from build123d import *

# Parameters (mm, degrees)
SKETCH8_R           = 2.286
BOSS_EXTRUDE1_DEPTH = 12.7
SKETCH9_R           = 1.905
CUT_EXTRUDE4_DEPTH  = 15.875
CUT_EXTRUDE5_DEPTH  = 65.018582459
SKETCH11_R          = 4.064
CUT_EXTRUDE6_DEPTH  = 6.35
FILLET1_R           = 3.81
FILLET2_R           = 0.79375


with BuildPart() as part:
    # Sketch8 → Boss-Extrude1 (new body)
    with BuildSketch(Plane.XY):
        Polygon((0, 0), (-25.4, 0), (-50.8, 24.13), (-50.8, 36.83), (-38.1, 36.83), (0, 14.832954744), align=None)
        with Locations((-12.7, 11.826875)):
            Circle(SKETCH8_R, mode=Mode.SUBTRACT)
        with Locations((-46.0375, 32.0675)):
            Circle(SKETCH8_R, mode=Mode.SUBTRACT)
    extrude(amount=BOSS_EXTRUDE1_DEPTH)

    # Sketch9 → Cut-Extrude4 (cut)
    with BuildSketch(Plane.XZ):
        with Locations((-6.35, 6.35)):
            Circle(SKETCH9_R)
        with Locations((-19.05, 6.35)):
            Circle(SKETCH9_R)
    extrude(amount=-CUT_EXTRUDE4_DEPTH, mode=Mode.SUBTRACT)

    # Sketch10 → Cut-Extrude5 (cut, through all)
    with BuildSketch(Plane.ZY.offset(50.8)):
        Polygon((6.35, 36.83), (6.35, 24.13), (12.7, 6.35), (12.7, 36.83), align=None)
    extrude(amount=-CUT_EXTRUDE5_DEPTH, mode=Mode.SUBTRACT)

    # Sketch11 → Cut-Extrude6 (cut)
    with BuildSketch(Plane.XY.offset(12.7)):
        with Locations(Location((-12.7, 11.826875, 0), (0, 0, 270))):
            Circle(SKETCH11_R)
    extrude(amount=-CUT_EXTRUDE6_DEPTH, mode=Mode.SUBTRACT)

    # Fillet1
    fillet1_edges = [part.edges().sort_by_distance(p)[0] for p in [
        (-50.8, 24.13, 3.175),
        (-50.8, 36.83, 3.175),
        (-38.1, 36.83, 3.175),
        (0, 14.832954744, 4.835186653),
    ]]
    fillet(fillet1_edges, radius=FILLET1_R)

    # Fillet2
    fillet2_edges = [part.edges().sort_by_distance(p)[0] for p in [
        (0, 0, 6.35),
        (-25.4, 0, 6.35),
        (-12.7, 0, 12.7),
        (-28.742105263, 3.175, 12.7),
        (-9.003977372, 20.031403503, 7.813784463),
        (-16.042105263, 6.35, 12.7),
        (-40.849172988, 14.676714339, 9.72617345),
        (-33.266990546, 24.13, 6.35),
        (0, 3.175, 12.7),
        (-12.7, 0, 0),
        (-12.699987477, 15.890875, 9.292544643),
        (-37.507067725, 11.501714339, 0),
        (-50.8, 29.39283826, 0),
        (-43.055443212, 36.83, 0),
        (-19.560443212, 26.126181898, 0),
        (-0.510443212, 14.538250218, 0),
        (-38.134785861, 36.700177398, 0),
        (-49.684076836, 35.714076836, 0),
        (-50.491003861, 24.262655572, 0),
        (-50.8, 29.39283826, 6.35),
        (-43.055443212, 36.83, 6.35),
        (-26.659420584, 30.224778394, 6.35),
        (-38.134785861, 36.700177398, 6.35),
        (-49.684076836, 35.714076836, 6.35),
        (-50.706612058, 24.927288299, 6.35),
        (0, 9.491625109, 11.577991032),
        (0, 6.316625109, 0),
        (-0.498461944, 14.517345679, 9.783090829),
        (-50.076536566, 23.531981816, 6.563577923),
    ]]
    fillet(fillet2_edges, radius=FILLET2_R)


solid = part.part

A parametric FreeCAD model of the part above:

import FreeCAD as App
import Part
import Sketcher

V = App.Vector
Q = App.Units.Quantity


def edges_at(feature, points):
    """Names of the edges that pass closest to the given points."""
    edges = feature.Shape.Edges
    near = lambda p: min(range(len(edges)), key=lambda i: edges[i].distToShape(Part.Vertex(*p))[0])
    return sorted({f"Edge{near(p) + 1}" for p in points})


def add_polygon(sketch, points):
    """Adds a closed chain of lines whose ends are joined by coincident constraints."""
    first, n = sketch.GeometryCount, len(points)
    for a, b in zip(points, points[1:] + points[:1]):
        sketch.addGeometry(Part.LineSegment(App.Vector(*a, 0), App.Vector(*b, 0)), False)
    for i in range(n):
        sketch.addConstraint(Sketcher.Constraint("Coincident", first + i, 2, first + (i + 1) % n, 1))

doc = App.newDocument("Part")
body = doc.addObject("PartDesign::Body", "Body")

# Sketch on XY plane
sketch1 = body.newObject("Sketcher::SketchObject", "Sketch")
sketch1.AttachmentSupport = (doc.getObject("XY_Plane"), [""])
sketch1.MapMode = "FlatFace"
add_polygon(sketch1, [(-25.4, 0), (0, 0), (0, 14.8), (-38.1, 36.8), (-50.8, 36.8), (-50.8, 24.1)])  # lines 0-5
sketch1.addGeometry(Part.Circle(V(-12.7, 11.8, 0), V(0, 0, 1), 2.3), False)  # 6
sketch1.addGeometry(Part.Circle(V(-46, 32.1, 0), V(0, 0, 1), 2.3), False)  # 7
sketch1.addConstraint([
    Sketcher.Constraint("Horizontal", 0),
    Sketcher.Constraint("Vertical", 1),
    Sketcher.Constraint("Horizontal", 3),
    Sketcher.Constraint("Vertical", 4),
    Sketcher.Constraint("Coincident", 0, 2, -1, 1),
    Sketcher.Constraint("Equal", 6, 7),
    Sketcher.Constraint("Equal", 3, 4),
    Sketcher.Constraint("Diameter", 6, Q("0.18 in")),
    Sketcher.Constraint("DistanceX", 0, 1, 0, 2, Q("1 in")),
    Sketcher.Constraint("DistanceX", 3, 2, 3, 1, Q("0.5 in")),
    Sketcher.Constraint("DistanceX", 3, 2, -1, 1, Q("2 in")),
    Sketcher.Constraint("Angle", 2, Q("150 deg")),
    Sketcher.Constraint("DistanceX", 2, 2, 6, 3, Q("1 in")),
    Sketcher.Constraint("DistanceY", -1, 1, 2, 2, Q("1.45 in")),
    Sketcher.Constraint("DistanceX", 7, 3, -1, 1, Q("1.8125 in")),
    Sketcher.Constraint("DistanceY", 6, 3, 7, 3, Q("0.796875 in")),
    Sketcher.Constraint("DistanceY", 7, 3, 2, 2, Q("0.1875 in")),
])
pad1 = body.newObject("PartDesign::Pad", "Pad")
pad1.Profile = sketch1
pad1.Length = Q("0.5 in")

# Sketch on XZ plane
sketch2 = body.newObject("Sketcher::SketchObject", "Sketch001")
sketch2.AttachmentSupport = (doc.getObject("XZ_Plane"), [""])
sketch2.MapMode = "FlatFace"
sketch2.addGeometry([
    Part.Circle(V(-6.3, 6.3, 0), V(0, 0, 1), 1.9),
    Part.Circle(V(-19.1, 6.3, 0), V(0, 0, 1), 1.9),
], False)
sketch2.addConstraint([
    Sketcher.Constraint("Equal", 0, 1),
    Sketcher.Constraint("Horizontal", 0, 3, 1, 3),
    Sketcher.Constraint("Diameter", 0, Q("0.15 in")),
    Sketcher.Constraint("DistanceX", 1, 3, 0, 3, Q("0.5 in")),
    Sketcher.Constraint("DistanceX", 0, 3, -1, 1, Q("0.25 in")),
    Sketcher.Constraint("DistanceY", -1, 1, 0, 3, Q("0.25 in")),
])
pocket1 = body.newObject("PartDesign::Pocket", "Pocket")
pocket1.Profile = sketch2
pocket1.Length = Q("0.625 in")

# Sketch on YZ plane
sketch3 = body.newObject("Sketcher::SketchObject", "Sketch002")
sketch3.AttachmentSupport = (doc.getObject("YZ_Plane"), [""])
sketch3.MapMode = "FlatFace"
sketch3.AttachmentOffset = App.Placement(V(0, 0, -2 * 25.4), App.Rotation())
add_polygon(sketch3, [(37, 6), (24, 6), (6, 13), (37, 13)])  # lines 0-3
sketch3.addConstraint([
    Sketcher.Constraint("Horizontal", 0),
    Sketcher.Constraint("Horizontal", 2),
    Sketcher.Constraint("Vertical", 3),
    Sketcher.Constraint("DistanceX", 0, 2, 0, 1, Q("0.5 in")),
    Sketcher.Constraint("DistanceX", 2, 1, 2, 2, Q("1.2 in")),
    Sketcher.Constraint("DistanceY", 3, 2, 3, 1, Q("0.25 in")),
    Sketcher.Constraint("DistanceY", -1, 1, 1, 2, Q("0.5 in")),
    Sketcher.Constraint("DistanceX", -1, 1, 0, 2, Q("0.95 in")),
])
pocket2 = body.newObject("PartDesign::Pocket", "Pocket001")
pocket2.Profile = sketch3
pocket2.Type = "ThroughAll"
pocket2.Reversed = True

# Sketch on XY plane
sketch4 = body.newObject("Sketcher::SketchObject", "Sketch003")
sketch4.AttachmentSupport = (doc.getObject("XY_Plane"), [""])
sketch4.MapMode = "FlatFace"
sketch4.AttachmentOffset = App.Placement(V(0, 0, 0.5 * 25.4), App.Rotation())
sketch4.addGeometry(Part.Circle(V(-12.7, 11.8, 0), V(0, 0, 1), 4.1), False)
sketch4.addConstraint([
    Sketcher.Constraint("Diameter", 0, Q("0.32 in")),
    Sketcher.Constraint("DistanceX", 0, 3, -1, 1, Q("0.5 in")),
    Sketcher.Constraint("DistanceY", -1, 1, 0, 3, 11.826875),
])
pocket3 = body.newObject("PartDesign::Pocket", "Pocket002")
pocket3.Profile = sketch4
pocket3.Length = Q("0.25 in")
doc.recompute()

fillet = body.newObject("PartDesign::Fillet", "Fillet")
fillet.Base = (pocket3, edges_at(pocket3, [
    (-50.8, 24.13, 3.175),
    (-50.8, 36.83, 3.175),
    (-38.1, 36.83, 3.175),
    (0, 14.833, 4.835),
]))
fillet.Radius = Q("0.15 in")
doc.recompute()

fillet2 = body.newObject("PartDesign::Fillet", "Fillet001")
fillet2.Base = (fillet, edges_at(fillet, [
    (0, 0, 6.35),
    (-25.4, 0, 6.35),
    (-12.7, 0, 12.7),
    (-28.742, 3.175, 12.7),
    (-9.004, 20.031, 7.814),
    (-16.042, 6.35, 12.7),
    (-40.849, 14.677, 9.726),
    (-33.267, 24.13, 6.35),
    (0, 3.175, 12.7),
    (-12.7, 0, 0),
    (-12.7, 15.891, 9.293),
    (-37.507, 11.502, 0),
    (-50.8, 29.393, 0),
    (-43.055, 36.83, 0),
    (-19.56, 26.126, 0),
    (-0.51, 14.538, 0),
    (-38.135, 36.7, 0),
    (-49.684, 35.714, 0),
    (-50.491, 24.263, 0),
    (-50.8, 29.393, 6.35),
    (-43.055, 36.83, 6.35),
    (-26.659, 30.225, 6.35),
    (-38.135, 36.7, 6.35),
    (-49.684, 35.714, 6.35),
    (-50.707, 24.927, 6.35),
    (0, 9.492, 11.578),
    (0, 6.317, 0),
    (-0.498, 14.517, 9.783),
    (-50.077, 23.532, 6.564),
]))
fillet2.Radius = Q("0.03125 in")

doc.recompute()
